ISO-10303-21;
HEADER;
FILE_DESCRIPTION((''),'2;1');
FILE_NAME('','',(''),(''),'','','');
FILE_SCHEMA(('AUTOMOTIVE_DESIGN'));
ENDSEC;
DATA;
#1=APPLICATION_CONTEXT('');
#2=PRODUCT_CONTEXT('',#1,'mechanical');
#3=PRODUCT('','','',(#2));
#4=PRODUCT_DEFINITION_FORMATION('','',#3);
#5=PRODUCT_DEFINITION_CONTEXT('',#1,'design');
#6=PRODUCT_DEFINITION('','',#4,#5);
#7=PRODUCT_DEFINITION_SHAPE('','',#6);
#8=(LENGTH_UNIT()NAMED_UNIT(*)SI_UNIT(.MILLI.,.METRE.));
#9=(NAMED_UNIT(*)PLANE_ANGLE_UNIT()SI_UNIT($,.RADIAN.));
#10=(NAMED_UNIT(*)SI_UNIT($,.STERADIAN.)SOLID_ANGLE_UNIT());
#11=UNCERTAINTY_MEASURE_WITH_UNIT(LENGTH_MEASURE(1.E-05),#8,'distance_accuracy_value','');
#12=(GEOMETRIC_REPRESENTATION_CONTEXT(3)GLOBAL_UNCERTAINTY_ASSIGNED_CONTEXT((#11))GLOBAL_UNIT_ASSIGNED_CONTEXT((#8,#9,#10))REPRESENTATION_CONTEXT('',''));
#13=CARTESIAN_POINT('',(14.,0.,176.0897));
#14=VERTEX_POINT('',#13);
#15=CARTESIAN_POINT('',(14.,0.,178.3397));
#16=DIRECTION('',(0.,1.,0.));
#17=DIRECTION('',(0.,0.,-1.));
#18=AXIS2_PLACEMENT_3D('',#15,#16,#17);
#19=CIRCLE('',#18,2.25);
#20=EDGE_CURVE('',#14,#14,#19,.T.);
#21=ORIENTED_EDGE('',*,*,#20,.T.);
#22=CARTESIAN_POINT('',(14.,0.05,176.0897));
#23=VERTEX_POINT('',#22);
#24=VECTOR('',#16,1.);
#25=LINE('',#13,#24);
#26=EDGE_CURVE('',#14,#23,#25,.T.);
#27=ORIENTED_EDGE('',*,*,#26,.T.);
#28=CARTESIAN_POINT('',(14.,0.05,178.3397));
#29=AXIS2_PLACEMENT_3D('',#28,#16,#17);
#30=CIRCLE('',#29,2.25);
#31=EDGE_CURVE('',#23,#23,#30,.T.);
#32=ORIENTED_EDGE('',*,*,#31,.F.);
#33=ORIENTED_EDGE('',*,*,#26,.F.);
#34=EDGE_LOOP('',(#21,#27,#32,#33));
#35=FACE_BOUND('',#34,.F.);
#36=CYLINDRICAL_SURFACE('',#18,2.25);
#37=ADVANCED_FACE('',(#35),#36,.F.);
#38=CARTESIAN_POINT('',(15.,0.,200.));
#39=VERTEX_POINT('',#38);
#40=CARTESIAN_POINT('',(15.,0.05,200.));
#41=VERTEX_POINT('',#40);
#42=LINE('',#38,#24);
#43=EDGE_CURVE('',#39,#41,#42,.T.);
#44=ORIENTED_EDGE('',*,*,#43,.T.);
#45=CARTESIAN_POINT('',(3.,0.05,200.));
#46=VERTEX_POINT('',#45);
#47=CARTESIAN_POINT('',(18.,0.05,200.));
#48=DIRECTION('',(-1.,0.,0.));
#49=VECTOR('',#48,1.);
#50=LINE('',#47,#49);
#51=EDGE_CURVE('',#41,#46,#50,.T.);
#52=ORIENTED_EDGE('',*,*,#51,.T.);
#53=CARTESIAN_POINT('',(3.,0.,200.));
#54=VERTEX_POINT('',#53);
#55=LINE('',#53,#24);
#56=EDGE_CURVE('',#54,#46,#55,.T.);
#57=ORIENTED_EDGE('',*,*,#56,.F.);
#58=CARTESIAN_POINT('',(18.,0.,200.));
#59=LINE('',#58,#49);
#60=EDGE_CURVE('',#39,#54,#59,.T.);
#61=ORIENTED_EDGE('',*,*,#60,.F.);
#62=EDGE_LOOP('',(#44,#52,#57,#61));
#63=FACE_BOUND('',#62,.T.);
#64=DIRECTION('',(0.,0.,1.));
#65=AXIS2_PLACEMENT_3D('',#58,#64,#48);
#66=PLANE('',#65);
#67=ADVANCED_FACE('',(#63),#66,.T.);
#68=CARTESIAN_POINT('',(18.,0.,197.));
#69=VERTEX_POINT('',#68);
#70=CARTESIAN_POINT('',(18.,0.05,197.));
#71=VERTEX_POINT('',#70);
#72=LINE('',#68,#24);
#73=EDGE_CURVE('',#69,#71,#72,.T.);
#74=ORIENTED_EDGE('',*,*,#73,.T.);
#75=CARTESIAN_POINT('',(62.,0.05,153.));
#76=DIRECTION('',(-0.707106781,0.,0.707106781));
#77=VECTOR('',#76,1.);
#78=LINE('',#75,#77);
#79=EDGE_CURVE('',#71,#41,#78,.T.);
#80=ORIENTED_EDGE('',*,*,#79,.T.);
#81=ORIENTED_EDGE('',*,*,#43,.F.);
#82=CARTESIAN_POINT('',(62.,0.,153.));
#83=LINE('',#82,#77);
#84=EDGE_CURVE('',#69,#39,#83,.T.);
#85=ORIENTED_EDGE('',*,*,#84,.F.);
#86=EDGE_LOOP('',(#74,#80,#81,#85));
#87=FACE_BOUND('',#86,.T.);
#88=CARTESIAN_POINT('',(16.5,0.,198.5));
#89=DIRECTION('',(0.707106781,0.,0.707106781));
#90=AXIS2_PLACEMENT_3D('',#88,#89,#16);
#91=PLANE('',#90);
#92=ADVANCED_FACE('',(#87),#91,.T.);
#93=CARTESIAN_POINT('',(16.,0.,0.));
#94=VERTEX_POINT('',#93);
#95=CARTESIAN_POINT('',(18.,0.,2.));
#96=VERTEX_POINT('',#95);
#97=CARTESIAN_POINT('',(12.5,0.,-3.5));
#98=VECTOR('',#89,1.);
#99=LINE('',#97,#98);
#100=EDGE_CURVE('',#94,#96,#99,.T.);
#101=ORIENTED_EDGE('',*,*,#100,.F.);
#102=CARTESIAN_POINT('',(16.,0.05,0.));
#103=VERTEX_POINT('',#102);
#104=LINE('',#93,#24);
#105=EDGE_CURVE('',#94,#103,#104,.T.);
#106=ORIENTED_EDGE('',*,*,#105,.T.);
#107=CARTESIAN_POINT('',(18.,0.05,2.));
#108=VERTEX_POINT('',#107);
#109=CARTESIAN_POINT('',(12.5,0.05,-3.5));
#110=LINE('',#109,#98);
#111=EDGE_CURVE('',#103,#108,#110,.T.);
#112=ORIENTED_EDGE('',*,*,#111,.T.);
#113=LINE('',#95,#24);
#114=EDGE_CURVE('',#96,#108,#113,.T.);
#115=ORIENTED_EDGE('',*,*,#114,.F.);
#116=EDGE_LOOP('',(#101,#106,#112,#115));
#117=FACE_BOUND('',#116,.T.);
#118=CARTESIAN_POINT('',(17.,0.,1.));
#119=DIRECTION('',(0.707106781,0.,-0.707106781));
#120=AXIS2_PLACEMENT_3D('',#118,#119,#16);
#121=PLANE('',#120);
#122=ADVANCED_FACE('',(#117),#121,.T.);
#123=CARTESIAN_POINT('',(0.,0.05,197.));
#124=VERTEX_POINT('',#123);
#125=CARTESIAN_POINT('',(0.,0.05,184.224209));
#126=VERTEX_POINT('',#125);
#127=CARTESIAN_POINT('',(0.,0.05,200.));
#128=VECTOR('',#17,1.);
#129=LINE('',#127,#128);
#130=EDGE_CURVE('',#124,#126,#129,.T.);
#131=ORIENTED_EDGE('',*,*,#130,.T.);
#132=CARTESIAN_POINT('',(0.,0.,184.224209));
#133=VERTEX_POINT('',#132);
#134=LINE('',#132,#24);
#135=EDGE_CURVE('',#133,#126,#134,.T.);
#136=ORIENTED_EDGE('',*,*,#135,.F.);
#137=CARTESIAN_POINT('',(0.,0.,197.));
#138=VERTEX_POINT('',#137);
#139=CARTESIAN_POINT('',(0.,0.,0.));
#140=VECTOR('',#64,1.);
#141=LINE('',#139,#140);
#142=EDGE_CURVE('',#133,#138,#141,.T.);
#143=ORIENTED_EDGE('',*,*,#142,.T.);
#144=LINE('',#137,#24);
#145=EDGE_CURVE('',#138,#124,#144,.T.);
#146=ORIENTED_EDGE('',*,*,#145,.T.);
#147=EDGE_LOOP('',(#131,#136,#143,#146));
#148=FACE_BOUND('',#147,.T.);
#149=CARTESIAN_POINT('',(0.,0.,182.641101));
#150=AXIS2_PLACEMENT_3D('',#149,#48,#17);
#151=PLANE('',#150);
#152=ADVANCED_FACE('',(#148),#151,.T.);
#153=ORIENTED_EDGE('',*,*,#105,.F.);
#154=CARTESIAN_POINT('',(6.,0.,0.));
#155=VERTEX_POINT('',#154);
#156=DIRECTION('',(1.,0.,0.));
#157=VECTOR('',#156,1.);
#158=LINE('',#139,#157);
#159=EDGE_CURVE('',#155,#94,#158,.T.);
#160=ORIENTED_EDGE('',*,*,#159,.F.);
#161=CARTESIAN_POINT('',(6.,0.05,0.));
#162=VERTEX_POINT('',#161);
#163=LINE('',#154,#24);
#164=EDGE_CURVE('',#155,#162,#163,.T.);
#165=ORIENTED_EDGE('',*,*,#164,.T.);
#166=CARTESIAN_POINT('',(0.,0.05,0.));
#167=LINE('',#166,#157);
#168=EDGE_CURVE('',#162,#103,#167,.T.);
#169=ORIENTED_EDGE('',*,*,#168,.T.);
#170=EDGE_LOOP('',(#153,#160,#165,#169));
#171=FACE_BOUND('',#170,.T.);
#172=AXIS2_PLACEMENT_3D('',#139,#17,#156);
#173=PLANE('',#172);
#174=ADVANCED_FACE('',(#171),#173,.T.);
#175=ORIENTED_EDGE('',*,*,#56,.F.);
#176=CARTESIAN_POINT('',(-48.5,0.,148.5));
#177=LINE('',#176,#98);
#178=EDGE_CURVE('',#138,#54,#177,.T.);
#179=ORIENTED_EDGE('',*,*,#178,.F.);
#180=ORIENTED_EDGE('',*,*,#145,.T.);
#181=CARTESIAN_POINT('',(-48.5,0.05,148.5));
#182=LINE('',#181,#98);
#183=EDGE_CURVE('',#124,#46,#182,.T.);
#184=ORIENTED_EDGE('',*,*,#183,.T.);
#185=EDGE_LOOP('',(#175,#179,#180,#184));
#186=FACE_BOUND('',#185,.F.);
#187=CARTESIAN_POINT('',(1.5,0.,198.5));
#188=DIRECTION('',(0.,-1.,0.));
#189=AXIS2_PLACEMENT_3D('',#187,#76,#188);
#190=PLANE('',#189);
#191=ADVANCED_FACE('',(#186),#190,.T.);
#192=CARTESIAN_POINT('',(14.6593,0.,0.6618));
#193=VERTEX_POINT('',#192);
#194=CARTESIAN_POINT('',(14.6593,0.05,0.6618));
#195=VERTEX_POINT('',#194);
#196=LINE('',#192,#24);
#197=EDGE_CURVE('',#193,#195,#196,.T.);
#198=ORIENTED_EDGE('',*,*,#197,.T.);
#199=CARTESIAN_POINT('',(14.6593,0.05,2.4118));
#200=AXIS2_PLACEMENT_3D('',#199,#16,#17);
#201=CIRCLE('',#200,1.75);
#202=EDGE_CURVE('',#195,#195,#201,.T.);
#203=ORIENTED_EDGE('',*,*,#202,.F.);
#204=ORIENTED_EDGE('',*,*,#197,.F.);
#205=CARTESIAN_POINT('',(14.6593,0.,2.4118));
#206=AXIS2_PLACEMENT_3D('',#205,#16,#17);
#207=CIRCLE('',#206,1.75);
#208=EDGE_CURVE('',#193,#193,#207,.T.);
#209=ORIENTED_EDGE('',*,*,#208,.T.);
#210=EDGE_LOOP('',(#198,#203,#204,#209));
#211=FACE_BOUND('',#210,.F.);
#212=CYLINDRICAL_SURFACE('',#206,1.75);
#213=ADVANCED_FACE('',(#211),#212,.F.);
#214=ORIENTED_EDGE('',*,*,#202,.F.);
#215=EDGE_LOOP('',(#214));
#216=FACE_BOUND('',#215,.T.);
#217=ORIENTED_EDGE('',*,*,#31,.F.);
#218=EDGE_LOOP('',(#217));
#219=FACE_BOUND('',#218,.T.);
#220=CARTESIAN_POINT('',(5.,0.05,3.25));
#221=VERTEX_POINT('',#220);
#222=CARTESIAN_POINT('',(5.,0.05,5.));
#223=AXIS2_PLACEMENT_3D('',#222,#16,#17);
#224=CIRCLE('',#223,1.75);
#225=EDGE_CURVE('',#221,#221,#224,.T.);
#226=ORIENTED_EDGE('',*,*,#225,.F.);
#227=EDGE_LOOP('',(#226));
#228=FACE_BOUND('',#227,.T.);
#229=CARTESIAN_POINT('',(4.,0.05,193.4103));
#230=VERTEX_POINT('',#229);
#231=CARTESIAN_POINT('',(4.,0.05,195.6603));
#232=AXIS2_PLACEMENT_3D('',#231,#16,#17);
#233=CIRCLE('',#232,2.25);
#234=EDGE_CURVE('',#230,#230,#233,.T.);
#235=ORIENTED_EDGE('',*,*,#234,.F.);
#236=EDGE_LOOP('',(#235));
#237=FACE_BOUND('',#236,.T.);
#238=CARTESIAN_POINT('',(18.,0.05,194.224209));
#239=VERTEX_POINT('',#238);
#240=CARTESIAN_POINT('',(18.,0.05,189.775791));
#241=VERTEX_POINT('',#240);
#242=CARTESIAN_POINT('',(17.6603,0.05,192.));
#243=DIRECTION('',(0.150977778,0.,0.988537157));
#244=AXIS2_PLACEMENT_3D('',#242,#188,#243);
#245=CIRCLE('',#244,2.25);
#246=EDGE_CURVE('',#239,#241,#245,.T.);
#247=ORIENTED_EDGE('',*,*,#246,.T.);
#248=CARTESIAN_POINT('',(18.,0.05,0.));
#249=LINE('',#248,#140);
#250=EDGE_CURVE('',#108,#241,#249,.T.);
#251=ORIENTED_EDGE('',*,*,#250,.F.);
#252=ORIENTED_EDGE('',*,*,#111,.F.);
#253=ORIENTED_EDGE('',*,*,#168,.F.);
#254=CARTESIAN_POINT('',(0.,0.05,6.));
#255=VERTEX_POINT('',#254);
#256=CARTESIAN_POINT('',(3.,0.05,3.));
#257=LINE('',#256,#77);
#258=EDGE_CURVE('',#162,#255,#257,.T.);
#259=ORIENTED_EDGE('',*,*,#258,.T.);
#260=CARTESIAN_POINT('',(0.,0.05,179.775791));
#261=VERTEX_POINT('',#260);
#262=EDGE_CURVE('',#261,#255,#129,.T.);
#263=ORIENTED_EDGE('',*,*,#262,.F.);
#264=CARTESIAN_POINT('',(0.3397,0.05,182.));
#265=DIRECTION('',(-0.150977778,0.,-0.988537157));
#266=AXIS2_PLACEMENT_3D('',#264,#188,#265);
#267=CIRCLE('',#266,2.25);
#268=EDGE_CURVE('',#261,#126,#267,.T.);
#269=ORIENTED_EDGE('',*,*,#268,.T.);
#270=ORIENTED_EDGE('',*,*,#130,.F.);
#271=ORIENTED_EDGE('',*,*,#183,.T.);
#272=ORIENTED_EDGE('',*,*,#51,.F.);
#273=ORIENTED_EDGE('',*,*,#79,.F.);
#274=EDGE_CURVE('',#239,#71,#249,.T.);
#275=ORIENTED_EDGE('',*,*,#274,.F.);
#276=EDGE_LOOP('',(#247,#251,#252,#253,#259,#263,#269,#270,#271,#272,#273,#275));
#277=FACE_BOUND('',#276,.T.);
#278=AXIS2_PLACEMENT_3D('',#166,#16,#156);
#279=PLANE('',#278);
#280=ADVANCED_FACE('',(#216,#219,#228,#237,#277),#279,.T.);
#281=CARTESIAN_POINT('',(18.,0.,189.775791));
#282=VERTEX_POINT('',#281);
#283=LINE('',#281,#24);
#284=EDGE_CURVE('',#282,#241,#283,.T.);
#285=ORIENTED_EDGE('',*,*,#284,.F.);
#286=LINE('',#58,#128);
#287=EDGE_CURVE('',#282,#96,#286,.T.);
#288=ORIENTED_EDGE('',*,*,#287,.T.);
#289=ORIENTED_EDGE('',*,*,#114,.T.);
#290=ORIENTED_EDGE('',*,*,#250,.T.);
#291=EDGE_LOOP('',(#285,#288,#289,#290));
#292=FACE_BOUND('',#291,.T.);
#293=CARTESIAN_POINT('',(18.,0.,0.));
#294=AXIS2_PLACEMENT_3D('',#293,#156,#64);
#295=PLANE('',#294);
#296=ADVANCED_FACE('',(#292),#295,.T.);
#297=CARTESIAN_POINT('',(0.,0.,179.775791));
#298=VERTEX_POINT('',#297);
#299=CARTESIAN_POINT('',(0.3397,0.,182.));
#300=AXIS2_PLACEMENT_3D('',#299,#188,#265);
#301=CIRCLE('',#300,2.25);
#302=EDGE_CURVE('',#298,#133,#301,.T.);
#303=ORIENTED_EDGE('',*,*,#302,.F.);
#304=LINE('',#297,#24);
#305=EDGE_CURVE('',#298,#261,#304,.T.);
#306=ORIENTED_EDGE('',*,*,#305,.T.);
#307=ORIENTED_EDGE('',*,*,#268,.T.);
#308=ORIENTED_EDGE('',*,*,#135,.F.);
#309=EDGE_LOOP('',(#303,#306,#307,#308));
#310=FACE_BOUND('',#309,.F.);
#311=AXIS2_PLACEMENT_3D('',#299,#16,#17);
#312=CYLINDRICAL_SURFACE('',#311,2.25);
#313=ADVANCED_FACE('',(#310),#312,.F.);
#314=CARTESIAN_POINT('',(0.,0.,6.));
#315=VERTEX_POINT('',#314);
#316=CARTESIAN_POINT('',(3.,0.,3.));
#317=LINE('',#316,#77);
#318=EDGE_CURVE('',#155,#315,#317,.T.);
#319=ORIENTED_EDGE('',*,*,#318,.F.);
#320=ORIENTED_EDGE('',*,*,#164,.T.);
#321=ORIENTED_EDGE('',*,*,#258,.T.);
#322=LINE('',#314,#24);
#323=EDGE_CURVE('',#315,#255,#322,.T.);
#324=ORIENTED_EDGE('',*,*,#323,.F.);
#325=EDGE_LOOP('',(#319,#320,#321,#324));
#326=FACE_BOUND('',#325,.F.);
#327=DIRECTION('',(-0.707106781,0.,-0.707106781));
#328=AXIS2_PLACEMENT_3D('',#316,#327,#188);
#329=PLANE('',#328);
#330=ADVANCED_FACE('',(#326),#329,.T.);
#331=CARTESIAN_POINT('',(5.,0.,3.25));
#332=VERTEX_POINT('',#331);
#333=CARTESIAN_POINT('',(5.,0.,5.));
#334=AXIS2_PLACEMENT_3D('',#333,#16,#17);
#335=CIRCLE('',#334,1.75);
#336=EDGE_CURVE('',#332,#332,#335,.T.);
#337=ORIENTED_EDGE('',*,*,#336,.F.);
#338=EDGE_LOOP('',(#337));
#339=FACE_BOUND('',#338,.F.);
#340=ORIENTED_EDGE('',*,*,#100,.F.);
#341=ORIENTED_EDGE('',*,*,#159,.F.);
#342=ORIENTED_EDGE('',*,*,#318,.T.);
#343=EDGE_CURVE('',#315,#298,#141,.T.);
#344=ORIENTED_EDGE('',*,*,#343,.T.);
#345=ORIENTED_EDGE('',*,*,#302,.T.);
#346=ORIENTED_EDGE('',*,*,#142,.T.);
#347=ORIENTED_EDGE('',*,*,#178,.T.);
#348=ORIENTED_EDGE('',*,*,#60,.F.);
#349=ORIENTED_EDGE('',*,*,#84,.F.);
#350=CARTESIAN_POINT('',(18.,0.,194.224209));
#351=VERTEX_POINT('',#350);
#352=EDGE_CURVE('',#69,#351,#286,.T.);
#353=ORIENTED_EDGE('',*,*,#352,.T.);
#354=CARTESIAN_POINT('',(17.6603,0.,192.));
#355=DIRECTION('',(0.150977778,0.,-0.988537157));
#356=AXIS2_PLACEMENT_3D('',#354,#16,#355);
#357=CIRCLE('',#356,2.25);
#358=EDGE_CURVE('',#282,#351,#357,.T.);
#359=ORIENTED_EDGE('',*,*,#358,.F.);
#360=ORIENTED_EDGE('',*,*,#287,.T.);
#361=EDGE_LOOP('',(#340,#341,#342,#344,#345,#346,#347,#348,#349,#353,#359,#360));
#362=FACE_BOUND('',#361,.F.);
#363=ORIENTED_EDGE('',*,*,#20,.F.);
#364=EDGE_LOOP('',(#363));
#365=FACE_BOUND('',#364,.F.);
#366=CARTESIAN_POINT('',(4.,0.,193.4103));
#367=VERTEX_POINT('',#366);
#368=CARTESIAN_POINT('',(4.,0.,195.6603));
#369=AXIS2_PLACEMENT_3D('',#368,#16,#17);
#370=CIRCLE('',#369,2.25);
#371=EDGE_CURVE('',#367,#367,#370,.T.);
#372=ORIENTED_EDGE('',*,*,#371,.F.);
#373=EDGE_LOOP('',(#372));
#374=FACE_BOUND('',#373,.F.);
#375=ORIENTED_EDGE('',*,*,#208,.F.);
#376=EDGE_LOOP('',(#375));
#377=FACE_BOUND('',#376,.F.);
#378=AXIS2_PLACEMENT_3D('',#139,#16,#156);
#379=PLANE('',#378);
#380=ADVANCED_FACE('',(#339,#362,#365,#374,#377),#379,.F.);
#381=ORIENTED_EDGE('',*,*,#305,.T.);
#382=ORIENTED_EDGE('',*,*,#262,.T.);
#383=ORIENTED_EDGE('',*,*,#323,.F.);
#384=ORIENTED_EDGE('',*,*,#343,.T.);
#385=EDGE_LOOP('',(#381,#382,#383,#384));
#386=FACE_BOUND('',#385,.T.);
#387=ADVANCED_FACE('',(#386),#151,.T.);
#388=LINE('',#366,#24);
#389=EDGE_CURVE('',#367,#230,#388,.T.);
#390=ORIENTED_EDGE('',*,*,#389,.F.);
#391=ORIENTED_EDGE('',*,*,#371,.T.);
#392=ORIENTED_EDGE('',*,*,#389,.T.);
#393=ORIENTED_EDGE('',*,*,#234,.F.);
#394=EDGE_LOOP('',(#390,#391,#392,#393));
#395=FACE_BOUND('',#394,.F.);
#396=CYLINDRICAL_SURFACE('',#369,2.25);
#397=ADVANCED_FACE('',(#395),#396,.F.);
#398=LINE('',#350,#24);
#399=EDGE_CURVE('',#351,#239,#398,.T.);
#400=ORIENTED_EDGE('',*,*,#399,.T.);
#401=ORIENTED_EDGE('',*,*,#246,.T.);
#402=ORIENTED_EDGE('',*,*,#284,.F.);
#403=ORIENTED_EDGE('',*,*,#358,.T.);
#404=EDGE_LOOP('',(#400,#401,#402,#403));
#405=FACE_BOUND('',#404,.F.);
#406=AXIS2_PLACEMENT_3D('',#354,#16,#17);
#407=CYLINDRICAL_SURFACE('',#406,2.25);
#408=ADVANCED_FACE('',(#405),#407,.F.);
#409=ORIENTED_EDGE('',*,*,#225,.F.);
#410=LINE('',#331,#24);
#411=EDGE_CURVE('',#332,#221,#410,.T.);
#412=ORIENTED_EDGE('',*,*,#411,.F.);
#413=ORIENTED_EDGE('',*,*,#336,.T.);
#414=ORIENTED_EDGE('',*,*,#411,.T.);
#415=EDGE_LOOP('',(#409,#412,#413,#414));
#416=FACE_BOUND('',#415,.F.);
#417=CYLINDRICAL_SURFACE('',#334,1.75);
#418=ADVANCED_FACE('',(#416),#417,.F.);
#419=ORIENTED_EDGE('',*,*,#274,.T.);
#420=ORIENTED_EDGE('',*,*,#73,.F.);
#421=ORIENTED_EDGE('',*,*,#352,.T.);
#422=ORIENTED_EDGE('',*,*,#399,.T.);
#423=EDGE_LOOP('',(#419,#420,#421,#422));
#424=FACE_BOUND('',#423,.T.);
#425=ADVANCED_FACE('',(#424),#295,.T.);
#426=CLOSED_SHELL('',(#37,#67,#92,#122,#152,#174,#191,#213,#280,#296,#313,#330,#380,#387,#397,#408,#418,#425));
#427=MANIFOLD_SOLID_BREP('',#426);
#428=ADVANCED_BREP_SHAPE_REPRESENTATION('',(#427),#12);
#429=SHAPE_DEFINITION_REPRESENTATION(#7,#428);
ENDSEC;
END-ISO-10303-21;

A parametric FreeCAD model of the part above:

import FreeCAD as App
import Part
import Sketcher

V = App.Vector
Q = App.Units.Quantity


def edges_at(feature, points):
    """Names of the edges that pass closest to the given points."""
    edges = feature.Shape.Edges
    near = lambda p: min(range(len(edges)), key=lambda i: edges[i].distToShape(Part.Vertex(*p))[0])
    return sorted({f"Edge{near(p) + 1}" for p in points})

doc = App.newDocument("Part")
body = doc.addObject("PartDesign::Body", "Body")

# Sketch on XZ plane
sketch1 = body.newObject("Sketcher::SketchObject", "Sketch")
sketch1.AttachmentSupport = (doc.getObject("XZ_Plane"), [""])
sketch1.MapMode = "FlatFace"
sketch1.addGeometry([
    Part.LineSegment(V(18, 0, 0), V(0, 0, 0)),
    Part.LineSegment(V(0, 0, 0), V(0, 200, 0)),
    Part.LineSegment(V(0, 200, 0), V(18, 200, 0)),
    Part.LineSegment(V(18, 200, 0), V(18, 0, 0)),
], False)
sketch1.addConstraint([
    Sketcher.Constraint("Coincident", 0, 2, 1, 1),
    Sketcher.Constraint("Coincident", 1, 2, 2, 1),
    Sketcher.Constraint("Coincident", 2, 2, 3, 1),
    Sketcher.Constraint("Coincident", 3, 2, 0, 1),
    Sketcher.Constraint("Horizontal", 0),
    Sketcher.Constraint("Vertical", 1),
    Sketcher.Constraint("Horizontal", 2),
    Sketcher.Constraint("Vertical", 3),
    Sketcher.Constraint("Coincident", 0, 2, -1, 1),
    Sketcher.Constraint("DistanceX", 0, 2, 0, 1, Q("18 mm")),
    Sketcher.Constraint("DistanceY", 1, 1, 1, 2, Q("200 mm")),
])
pad1 = body.newObject("PartDesign::Pad", "Pad")
pad1.Profile = sketch1
pad1.Length = 0.05
pad1.Reversed = True

# Sketch on XZ plane
sketch2 = body.newObject("Sketcher::SketchObject", "Sketch001")
sketch2.AttachmentSupport = (doc.getObject("XZ_Plane"), [""])
sketch2.MapMode = "FlatFace"
sketch2.addGeometry([
    Part.Circle(V(5, 5, 0), V(0, 0, 1), 1.8),
    Part.Circle(V(14.7, 2.4, 0), V(0, 0, 1), 1.8),
], False)
sketch2.addConstraint([
    Sketcher.Constraint("Equal", 0, 1),
    Sketcher.Constraint("Diameter", 0, Q("3.5 mm")),
    Sketcher.Constraint("DistanceX", -1, 1, 0, 3, Q("5 mm")),
    Sketcher.Constraint("DistanceY", -1, 1, 0, 3, Q("5 mm")),
    Sketcher.Constraint("DistanceX", -1, 1, 1, 3, Q("14.6593 mm")),
    Sketcher.Constraint("DistanceY", -1, 1, 1, 3, Q("2.4118 mm")),
])
doc.recompute()
hole = body.newObject("PartDesign::Hole", "Hole")
hole.Profile = sketch2
hole.ThreadType = "None"
hole.Diameter = 3.5
hole.DepthType = "ThroughAll"
doc.recompute()

chamfer = body.newObject("PartDesign::Chamfer", "Chamfer")
chamfer.Base = (hole, edges_at(hole, [(18, 0.025, 200), (0, 0.025, 200)]))
chamfer.Size = 3

# Sketch on XZ plane
sketch3 = body.newObject("Sketcher::SketchObject", "Sketch002")
sketch3.AttachmentSupport = (doc.getObject("XZ_Plane"), [""])
sketch3.MapMode = "FlatFace"
sketch3.addGeometry([
    Part.Circle(V(14, 178.3, 0), V(0, 0, 1), 2.2),
    Part.Circle(V(0.3, 182, 0), V(0, 0, 1), 2.2),
    Part.Circle(V(4, 195.7, 0), V(0, 0, 1), 2.2),
    Part.Circle(V(17.7, 192, 0), V(0, 0, 1), 2.2),
], False)
sketch3.addConstraint([
    Sketcher.Constraint("Equal", 0, 1),
    Sketcher.Constraint("Equal", 1, 2),
    Sketcher.Constraint("Equal", 2, 3),
    Sketcher.Constraint("Diameter", 0, Q("4.5 mm")),
    Sketcher.Constraint("DistanceX", -1, 1, 0, 3, Q("14 mm")),
    Sketcher.Constraint("DistanceY", -1, 1, 1, 3, Q("182 mm")),
    Sketcher.Constraint("DistanceX", -1, 1, 2, 3, Q("4 mm")),
    Sketcher.Constraint("DistanceY", -1, 1, 3, 3, Q("192 mm")),
    Sketcher.Constraint("DistanceY", -1, 1, 0, 3, Q("178.3397 mm")),
    Sketcher.Constraint("DistanceX", -1, 1, 1, 3, Q("0.3397 mm")),
    Sketcher.Constraint("DistanceY", -1, 1, 2, 3, Q("195.6603 mm")),
    Sketcher.Constraint("DistanceX", -1, 1, 3, 3, Q("17.6603 mm")),
])
doc.recompute()
hole2 = body.newObject("PartDesign::Hole", "Hole001")
hole2.Profile = sketch3
hole2.ThreadType = "None"
hole2.Diameter = 4.5
hole2.DepthType = "Dimension"
hole2.Depth = 0.05
hole2.DrillPoint = "Angled"
hole2.DrillPointAngle = 118
doc.recompute()

chamfer2 = body.newObject("PartDesign::Chamfer", "Chamfer001")
chamfer2.Base = (hole2, edges_at(hole2, [(18, 0.025, 0)]))
chamfer2.Size = 2
doc.recompute()

chamfer3 = body.newObject("PartDesign::Chamfer", "Chamfer002")
chamfer3.Base = (chamfer2, edges_at(chamfer2, [(0, 0.025, 0)]))
chamfer3.Size = 6

doc.recompute()
